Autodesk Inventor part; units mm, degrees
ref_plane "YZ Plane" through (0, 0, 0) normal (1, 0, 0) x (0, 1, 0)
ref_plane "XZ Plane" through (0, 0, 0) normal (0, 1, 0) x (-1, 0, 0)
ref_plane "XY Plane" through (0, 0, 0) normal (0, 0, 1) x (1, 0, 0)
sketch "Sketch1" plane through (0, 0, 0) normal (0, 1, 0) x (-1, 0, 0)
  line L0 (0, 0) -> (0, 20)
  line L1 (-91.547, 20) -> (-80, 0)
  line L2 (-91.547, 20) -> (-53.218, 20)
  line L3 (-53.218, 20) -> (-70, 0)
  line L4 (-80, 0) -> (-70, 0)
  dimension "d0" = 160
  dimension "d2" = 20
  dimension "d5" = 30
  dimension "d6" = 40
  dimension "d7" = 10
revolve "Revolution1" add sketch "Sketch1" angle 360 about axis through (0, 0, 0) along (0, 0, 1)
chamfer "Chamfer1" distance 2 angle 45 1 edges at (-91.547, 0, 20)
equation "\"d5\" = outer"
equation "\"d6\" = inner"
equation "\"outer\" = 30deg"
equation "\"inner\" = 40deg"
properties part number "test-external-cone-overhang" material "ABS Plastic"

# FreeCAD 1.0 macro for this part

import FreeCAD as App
import Part
import Sketcher

V = App.Vector
Q = App.Units.Quantity


def edges_at(feature, points):
    """Names of the edges that pass closest to the given points."""
    edges = feature.Shape.Edges
    near = lambda p: min(range(len(edges)), key=lambda i: edges[i].distToShape(Part.Vertex(*p))[0])
    return sorted({f"Edge{near(p) + 1}" for p in points})

doc = App.newDocument("Part")
params = doc.addObject("Spreadsheet::Sheet", "Params")
for row, (alias, value) in enumerate([
    ("sketch1_width", "10 mm"),
    ("revolution_angle", "360 deg"),
    ("chamfer_size", "2 mm"),
], start=1):
    params.set(f"A{row}", alias)
    params.set(f"B{row}", "=" + value)
    params.setAlias(f"B{row}", alias)

body = doc.addObject("PartDesign::Body", "Body")

sketch1 = body.newObject("Sketcher::SketchObject", "Sketch")
sketch1.AttachmentSupport = (doc.getObject("XZ_Plane"), [""])
sketch1.MapMode = "FlatFace"
sketch1.addGeometry([
    Part.LineSegment(V(53, 20, 0), V(92, 20, 0)),
    Part.LineSegment(V(92, 20, 0), V(80, 0, 0)),
    Part.LineSegment(V(80, 0, 0), V(70, 0, 0)),
    Part.LineSegment(V(70, 0, 0), V(53, 20, 0)),
], False)
sketch1.addConstraint([
    Sketcher.Constraint("Coincident", 0, 2, 1, 1),
    Sketcher.Constraint("Coincident", 1, 2, 2, 1),
    Sketcher.Constraint("Coincident", 2, 2, 3, 1),
    Sketcher.Constraint("Coincident", 3, 2, 0, 1),
    Sketcher.Constraint("Horizontal", 0),
    Sketcher.Constraint("Horizontal", 2),
    Sketcher.Constraint("PointOnObject", 1, 2, -1),
    Sketcher.Constraint("DistanceX", 2, 2, 2, 1, Q("10 mm")),
    Sketcher.Constraint("DistanceY", -1, 1, 0, 2, Q("20 mm")),
    Sketcher.Constraint("Angle", 1, Q("-120 deg")),
    Sketcher.Constraint("Angle", 3, Q("130 deg")),
    Sketcher.Constraint("DistanceX", -1, 1, 1, 2, Q("80 mm")),
])
sketch1.setExpression("Constraints[7]", "Params.sketch1_width")
revolution = body.newObject("PartDesign::Revolution", "Revolution")
revolution.Profile = sketch1
revolution.ReferenceAxis = (sketch1, ["V_Axis"])
revolution.setExpression("Angle", "Params.revolution_angle")
doc.recompute()

chamfer = body.newObject("PartDesign::Chamfer", "Chamfer")
chamfer.Base = (revolution, edges_at(revolution, [(-91.547, 0, 20)]))
chamfer.setExpression("Size", "Params.chamfer_size")

doc.recompute()
